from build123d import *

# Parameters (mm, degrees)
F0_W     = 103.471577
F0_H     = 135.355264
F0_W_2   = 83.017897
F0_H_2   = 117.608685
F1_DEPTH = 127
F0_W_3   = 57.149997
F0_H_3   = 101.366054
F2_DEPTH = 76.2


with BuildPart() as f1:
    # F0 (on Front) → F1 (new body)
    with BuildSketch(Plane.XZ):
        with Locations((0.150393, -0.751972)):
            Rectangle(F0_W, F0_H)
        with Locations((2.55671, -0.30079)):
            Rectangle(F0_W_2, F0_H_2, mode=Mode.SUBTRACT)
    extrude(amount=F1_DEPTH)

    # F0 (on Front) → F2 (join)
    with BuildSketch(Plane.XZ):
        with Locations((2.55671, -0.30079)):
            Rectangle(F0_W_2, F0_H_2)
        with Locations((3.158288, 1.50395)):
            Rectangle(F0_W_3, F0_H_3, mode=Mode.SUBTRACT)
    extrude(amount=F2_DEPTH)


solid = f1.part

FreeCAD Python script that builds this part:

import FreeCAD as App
import Part
import Sketcher

V = App.Vector
Q = App.Units.Quantity


def add_polygon(sketch, points):
    """Adds a closed chain of lines whose ends are joined by coincident constraints."""
    first, n = sketch.GeometryCount, len(points)
    for a, b in zip(points, points[1:] + points[:1]):
        sketch.addGeometry(Part.LineSegment(App.Vector(*a, 0), App.Vector(*b, 0)), False)
    for i in range(n):
        sketch.addConstraint(Sketcher.Constraint("Coincident", first + i, 2, first + (i + 1) % n, 1))

doc = App.newDocument("Part")
body = doc.addObject("PartDesign::Body", "Body")

# Sketch on XZ plane
sketch1 = doc.addObject("Sketcher::SketchObject", "Sketch")
body.addObject(sketch1)
sketch1.AttachmentSupport = (doc.XZ_Plane, [""])
sketch1.MapMode = "FlatFace"
add_polygon(sketch1, [(-51.585395, 66.92566), (-51.585395, -68.429604), (51.886181, -68.429604), (51.886181, 66.92566)])  # lines 0-3
add_polygon(sketch1, [(44.065658, -59.105133), (-38.952238, -59.105133), (-38.952238, 58.503552), (44.065658, 58.503552)])  # lines 4-7
sketch1.addConstraint([
    Sketcher.Constraint("Vertical", 0),
    Sketcher.Constraint("Horizontal", 1),
    Sketcher.Constraint("Vertical", 2),
    Sketcher.Constraint("Horizontal", 3),
    Sketcher.Constraint("Horizontal", 4),
    Sketcher.Constraint("Vertical", 5),
    Sketcher.Constraint("Horizontal", 6),
    Sketcher.Constraint("Vertical", 7),
    Sketcher.Constraint("DistanceX", 1, 1, 1, 2, 103.471577),
    Sketcher.Constraint("DistanceX", 4, 2, 4, 1, 83.017897),
    Sketcher.Constraint("DistanceY", 0, 2, 0, 1, 135.355264),
    Sketcher.Constraint("DistanceY", 5, 1, 5, 2, 117.608685),
    Sketcher.Constraint("DistanceX", -1, 1, 1, 2, 51.886181),
    Sketcher.Constraint("DistanceY", -1, 1, 2, 2, 66.92566),
    Sketcher.Constraint("DistanceX", 4, 2, -1, 1, 38.952238),
    Sketcher.Constraint("DistanceY", 0, 2, 4, 2, 9.324471),
])
pad1 = doc.addObject("PartDesign::Pad", "Pad")
body.addObject(pad1)
pad1.Profile = sketch1
pad1.Length = Q("5 in")

# Sketch on XZ plane
sketch2 = doc.addObject("Sketcher::SketchObject", "Sketch001")
body.addObject(sketch2)
sketch2.AttachmentSupport = (doc.XZ_Plane, [""])
sketch2.MapMode = "FlatFace"
add_polygon(sketch2, [(-38.952238, 58.503552), (-38.952238, -59.105133), (44.065658, -59.105133), (44.065658, 58.503552)])  # lines 0-3
add_polygon(sketch2, [(31.733286, -49.179077), (-25.416711, -49.179077), (-25.416711, 52.186977), (31.733286, 52.186977)])  # lines 4-7
sketch2.addConstraint([
    Sketcher.Constraint("Vertical", 0),
    Sketcher.Constraint("Horizontal", 1),
    Sketcher.Constraint("Vertical", 2),
    Sketcher.Constraint("Horizontal", 3),
    Sketcher.Constraint("Horizontal", 4),
    Sketcher.Constraint("Vertical", 5),
    Sketcher.Constraint("Horizontal", 6),
    Sketcher.Constraint("Vertical", 7),
    Sketcher.Constraint("DistanceX", 4, 2, 4, 1, Q("2.2499999 in")),
    Sketcher.Constraint("DistanceX", 1, 1, 1, 2, 83.017897),
    Sketcher.Constraint("DistanceY", 0, 2, 0, 1, 117.608685),
    Sketcher.Constraint("DistanceY", 5, 1, 5, 2, 101.366054),
    Sketcher.Constraint("DistanceX", 0, 2, -1, 1, 38.952238),
    Sketcher.Constraint("DistanceX", 4, 2, -1, 1, 25.416711),
    Sketcher.Constraint("DistanceY", 4, 2, 3, 2, 107.682629),
    Sketcher.Constraint("DistanceY", 0, 2, -1, 1, 59.105133),
])
pad2 = doc.addObject("PartDesign::Pad", "Pad001")
body.addObject(pad2)
pad2.Profile = sketch2
pad2.Length = Q("3 in")

doc.recompute()
